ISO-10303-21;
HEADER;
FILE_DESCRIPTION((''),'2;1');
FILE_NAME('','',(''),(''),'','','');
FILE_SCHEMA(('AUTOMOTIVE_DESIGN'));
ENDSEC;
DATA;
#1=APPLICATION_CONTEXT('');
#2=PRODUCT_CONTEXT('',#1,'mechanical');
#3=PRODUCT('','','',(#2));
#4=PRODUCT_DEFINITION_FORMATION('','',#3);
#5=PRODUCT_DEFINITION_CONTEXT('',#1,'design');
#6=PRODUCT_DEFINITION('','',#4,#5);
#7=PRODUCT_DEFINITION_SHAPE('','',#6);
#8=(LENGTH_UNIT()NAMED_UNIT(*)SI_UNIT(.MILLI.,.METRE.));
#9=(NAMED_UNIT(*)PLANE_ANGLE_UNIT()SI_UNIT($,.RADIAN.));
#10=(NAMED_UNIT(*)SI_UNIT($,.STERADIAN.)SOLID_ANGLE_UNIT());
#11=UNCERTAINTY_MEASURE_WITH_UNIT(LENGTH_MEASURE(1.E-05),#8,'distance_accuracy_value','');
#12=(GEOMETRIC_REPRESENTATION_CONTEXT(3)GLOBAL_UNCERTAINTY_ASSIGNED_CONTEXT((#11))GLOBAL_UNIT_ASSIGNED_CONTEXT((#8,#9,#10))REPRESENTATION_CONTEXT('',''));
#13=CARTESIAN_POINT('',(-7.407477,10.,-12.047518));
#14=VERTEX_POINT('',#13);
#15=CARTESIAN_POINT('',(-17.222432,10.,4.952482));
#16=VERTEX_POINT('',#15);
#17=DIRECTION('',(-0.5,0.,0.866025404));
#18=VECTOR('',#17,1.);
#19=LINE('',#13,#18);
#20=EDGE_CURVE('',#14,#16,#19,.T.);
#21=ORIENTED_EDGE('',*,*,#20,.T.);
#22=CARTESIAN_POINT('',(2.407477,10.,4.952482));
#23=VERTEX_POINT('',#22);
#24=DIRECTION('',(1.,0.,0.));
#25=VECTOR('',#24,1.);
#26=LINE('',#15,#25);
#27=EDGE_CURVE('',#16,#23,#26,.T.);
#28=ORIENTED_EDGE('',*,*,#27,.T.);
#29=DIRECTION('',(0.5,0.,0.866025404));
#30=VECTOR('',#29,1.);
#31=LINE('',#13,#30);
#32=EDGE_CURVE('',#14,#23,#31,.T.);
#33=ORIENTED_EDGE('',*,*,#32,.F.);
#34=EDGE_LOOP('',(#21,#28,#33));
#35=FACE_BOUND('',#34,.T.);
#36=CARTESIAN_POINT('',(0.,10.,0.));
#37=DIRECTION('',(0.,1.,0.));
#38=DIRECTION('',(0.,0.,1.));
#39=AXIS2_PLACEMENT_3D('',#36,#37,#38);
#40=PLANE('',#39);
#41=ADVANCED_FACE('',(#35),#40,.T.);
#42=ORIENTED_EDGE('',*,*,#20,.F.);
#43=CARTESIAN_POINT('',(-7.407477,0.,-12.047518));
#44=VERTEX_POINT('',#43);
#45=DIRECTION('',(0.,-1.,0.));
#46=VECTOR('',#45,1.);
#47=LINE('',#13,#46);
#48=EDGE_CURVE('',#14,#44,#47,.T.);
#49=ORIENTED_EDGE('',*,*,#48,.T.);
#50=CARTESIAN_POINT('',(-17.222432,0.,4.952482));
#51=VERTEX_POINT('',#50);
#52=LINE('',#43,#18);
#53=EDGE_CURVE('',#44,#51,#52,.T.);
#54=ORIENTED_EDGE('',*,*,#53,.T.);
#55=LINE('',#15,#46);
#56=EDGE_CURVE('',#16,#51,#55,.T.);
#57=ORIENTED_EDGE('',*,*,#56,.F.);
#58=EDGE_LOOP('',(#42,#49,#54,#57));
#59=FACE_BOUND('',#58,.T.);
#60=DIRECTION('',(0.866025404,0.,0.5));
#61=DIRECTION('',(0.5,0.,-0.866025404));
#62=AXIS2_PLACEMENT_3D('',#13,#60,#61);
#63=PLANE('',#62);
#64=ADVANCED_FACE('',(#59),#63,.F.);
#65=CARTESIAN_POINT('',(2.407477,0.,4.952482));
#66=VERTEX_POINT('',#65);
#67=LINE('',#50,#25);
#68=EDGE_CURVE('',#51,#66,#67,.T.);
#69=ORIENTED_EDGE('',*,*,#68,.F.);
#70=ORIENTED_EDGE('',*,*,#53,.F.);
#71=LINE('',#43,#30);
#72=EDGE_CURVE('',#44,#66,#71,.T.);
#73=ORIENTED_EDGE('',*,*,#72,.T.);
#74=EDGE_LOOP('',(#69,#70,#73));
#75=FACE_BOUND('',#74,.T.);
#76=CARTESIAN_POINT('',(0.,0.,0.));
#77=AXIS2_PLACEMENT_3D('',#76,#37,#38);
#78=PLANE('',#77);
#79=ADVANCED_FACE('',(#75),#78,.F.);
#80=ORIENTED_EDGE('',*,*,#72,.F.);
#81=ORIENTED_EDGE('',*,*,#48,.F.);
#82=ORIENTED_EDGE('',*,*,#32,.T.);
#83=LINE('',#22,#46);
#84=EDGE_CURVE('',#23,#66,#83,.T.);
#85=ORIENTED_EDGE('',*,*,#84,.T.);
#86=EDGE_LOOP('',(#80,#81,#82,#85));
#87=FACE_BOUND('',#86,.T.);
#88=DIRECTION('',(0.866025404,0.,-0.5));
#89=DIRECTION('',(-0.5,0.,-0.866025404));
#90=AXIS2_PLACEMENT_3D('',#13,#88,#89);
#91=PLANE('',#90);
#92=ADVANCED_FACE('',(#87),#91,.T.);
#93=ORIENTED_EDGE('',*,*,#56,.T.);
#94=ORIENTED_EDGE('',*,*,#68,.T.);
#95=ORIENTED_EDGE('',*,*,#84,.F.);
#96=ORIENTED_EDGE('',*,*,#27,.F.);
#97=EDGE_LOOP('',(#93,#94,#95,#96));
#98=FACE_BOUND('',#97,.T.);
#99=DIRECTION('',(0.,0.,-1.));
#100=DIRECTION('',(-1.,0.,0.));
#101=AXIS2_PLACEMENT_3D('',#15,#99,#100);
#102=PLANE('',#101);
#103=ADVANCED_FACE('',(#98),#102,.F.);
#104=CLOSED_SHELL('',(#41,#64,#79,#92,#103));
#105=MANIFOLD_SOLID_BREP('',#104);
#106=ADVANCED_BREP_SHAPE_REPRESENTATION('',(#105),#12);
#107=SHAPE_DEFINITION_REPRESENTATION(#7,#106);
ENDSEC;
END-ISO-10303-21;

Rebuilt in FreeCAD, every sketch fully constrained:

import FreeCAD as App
import Part
import Sketcher

V = App.Vector
Q = App.Units.Quantity

doc = App.newDocument("Part")
body = doc.addObject("PartDesign::Body", "Body")

# Sketch on XZ plane
sketch1 = body.newObject("Sketcher::SketchObject", "Sketch")
sketch1.AttachmentSupport = (doc.getObject("XZ_Plane"), [""])
sketch1.MapMode = "FlatFace"
sketch1.addGeometry(Part.LineSegment(V(-7.407477, -12.047518, 0), V(-17.222432, 4.952482, 0)), False)
sketch1.addGeometry(Part.LineSegment(V(-17.222432, 4.952482, 0), V(2.407477, 4.952482, 0)), False)
sketch1.addGeometry(Part.LineSegment(V(2.407477, 4.952482, 0), V(-7.407477, -12.047518, 0)), False)
sketch1.addConstraint(Sketcher.Constraint("Coincident", 0, 2, 1, 1))
sketch1.addConstraint(Sketcher.Constraint("Coincident", 1, 2, 2, 1))
sketch1.addConstraint(Sketcher.Constraint("Coincident", 2, 2, 0, 1))
sketch1.addConstraint(Sketcher.Constraint("Horizontal", 1))
sketch1.addConstraint(Sketcher.Constraint("Equal", 0, 2))
sketch1.addConstraint(Sketcher.Constraint("Angle", 0, Q("120 deg")))
sketch1.addConstraint(Sketcher.Constraint("DistanceY", 2, 2, 0, 2, 17.0))
sketch1.addConstraint(Sketcher.Constraint("DistanceX", 0, 2, -1, 1, 17.222432))
sketch1.addConstraint(Sketcher.Constraint("DistanceY", -1, 1, 0, 2, 4.952482))
pad1 = body.newObject("PartDesign::Pad", "Pad")
pad1.Profile = sketch1
pad1.Length = 10
pad1.Reversed = True

doc.recompute()
